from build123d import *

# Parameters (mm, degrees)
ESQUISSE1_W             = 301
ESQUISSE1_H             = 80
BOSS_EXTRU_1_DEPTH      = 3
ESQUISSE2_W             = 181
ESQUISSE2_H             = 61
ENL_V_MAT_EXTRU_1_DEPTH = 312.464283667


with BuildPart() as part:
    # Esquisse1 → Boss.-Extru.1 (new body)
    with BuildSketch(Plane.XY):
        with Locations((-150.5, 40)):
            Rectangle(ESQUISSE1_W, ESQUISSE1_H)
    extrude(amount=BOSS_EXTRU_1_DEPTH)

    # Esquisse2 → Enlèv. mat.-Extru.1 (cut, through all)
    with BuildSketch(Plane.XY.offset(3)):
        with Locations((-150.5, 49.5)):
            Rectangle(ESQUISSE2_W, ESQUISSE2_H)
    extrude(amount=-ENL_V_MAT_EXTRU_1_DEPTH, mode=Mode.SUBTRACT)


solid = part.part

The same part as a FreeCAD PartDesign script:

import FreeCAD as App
import Part
import Sketcher
Q = App.Units.Quantity


def add_polygon(sketch, points):
    """Adds a closed chain of lines whose ends are joined by coincident constraints."""
    first, n = sketch.GeometryCount, len(points)
    for a, b in zip(points, points[1:] + points[:1]):
        sketch.addGeometry(Part.LineSegment(App.Vector(*a, 0), App.Vector(*b, 0)), False)
    for i in range(n):
        sketch.addConstraint(Sketcher.Constraint("Coincident", first + i, 2, first + (i + 1) % n, 1))

doc = App.newDocument("Part")
body = doc.addObject("PartDesign::Body", "Body")

sketch1 = body.newObject("Sketcher::SketchObject", "Sketch")
sketch1.AttachmentSupport = (doc.getObject("XY_Plane"), [""])
sketch1.MapMode = "FlatFace"
add_polygon(sketch1, [(-301, 80), (-301, 0), (0, 0), (0, 80)])
sketch1.addConstraint(Sketcher.Constraint("Vertical", 0))
sketch1.addConstraint(Sketcher.Constraint("Horizontal", 1))
sketch1.addConstraint(Sketcher.Constraint("Vertical", 2))
sketch1.addConstraint(Sketcher.Constraint("Horizontal", 3))
sketch1.addConstraint(Sketcher.Constraint("Coincident", 1, 2, -1, 1))
sketch1.addConstraint(Sketcher.Constraint("DistanceX", 1, 1, 1, 2, Q("301 mm")))
sketch1.addConstraint(Sketcher.Constraint("DistanceY", 0, 2, 0, 1, Q("80 mm")))
pad1 = body.newObject("PartDesign::Pad", "Pad")
pad1.Profile = sketch1
pad1.Length = 3

sketch2 = body.newObject("Sketcher::SketchObject", "Sketch001")
sketch2.AttachmentSupport = (doc.getObject("XY_Plane"), [""])
sketch2.MapMode = "FlatFace"
sketch2.AttachmentOffset = App.Placement(App.Vector(0, 0, 3), App.Rotation())
add_polygon(sketch2, [(-241, 80), (-241, 19), (-60, 19), (-60, 80)])
sketch2.addConstraint(Sketcher.Constraint("Vertical", 0))
sketch2.addConstraint(Sketcher.Constraint("Horizontal", 1))
sketch2.addConstraint(Sketcher.Constraint("Vertical", 2))
sketch2.addConstraint(Sketcher.Constraint("Horizontal", 3))
sketch2.addConstraint(Sketcher.Constraint("DistanceX", 1, 1, 1, 2, Q("181 mm")))
sketch2.addConstraint(Sketcher.Constraint("DistanceY", 0, 2, 0, 1, Q("61 mm")))
sketch2.addConstraint(Sketcher.Constraint("DistanceX", 0, 2, -1, 1, Q("241 mm")))
sketch2.addConstraint(Sketcher.Constraint("DistanceY", -1, 1, 0, 2, Q("19 mm")))
pocket1 = body.newObject("PartDesign::Pocket", "Pocket")
pocket1.Profile = sketch2
pocket1.Type = "ThroughAll"

doc.recompute()
